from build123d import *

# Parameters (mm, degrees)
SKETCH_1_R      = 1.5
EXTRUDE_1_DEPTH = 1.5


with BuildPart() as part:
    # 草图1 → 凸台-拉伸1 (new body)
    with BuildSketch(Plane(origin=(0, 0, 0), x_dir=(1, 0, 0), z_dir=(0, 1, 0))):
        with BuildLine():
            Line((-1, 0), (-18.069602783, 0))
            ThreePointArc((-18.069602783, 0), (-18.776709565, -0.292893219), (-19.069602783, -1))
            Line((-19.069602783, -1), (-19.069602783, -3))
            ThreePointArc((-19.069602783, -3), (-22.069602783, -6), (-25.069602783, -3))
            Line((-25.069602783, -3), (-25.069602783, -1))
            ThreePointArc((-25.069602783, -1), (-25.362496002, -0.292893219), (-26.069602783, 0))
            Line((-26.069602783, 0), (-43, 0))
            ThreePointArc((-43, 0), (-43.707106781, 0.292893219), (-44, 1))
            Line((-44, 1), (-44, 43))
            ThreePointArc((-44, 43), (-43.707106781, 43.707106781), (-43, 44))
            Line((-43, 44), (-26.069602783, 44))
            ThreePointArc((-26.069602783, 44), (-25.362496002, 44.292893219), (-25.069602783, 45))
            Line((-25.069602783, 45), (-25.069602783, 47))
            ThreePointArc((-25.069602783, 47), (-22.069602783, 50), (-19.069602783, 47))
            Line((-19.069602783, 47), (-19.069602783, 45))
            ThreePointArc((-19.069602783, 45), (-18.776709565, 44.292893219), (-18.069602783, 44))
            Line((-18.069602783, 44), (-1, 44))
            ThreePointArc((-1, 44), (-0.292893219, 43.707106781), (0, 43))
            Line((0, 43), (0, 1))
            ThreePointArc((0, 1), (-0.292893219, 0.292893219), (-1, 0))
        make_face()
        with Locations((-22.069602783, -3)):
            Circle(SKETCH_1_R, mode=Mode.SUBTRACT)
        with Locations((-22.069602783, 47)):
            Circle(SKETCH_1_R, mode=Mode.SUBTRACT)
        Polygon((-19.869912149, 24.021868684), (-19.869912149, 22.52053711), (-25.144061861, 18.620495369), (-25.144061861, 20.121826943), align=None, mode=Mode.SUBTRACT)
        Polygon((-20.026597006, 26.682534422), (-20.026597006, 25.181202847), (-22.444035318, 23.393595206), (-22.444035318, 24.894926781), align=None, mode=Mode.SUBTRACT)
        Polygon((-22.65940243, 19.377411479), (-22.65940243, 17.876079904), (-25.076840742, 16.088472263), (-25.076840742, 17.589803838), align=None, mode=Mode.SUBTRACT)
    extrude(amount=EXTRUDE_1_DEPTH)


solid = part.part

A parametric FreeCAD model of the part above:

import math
import FreeCAD as App
import Part
import Sketcher
Q = App.Units.Quantity

doc = App.newDocument("Part")
body = doc.addObject("PartDesign::Body", "Body")

# Sketch on XZ plane
sketch1 = body.newObject("Sketcher::SketchObject", "Sketch")
sketch1.AttachmentSupport = (doc.getObject("XZ_Plane"), [""])
sketch1.MapMode = "FlatFace"
sketch1.addGeometry([
    Part.LineSegment(App.Vector(-18.1, 0, 0), App.Vector(-1, 0, 0)),  # 0
    Part.ArcOfCircle(Part.Circle(App.Vector(-1, -1, 0), App.Vector(0, 0, 1), 1), math.radians(0), math.radians(90)),  # 1
    Part.LineSegment(App.Vector(0, -1, 0), App.Vector(0, -43, 0)),  # 2
    Part.ArcOfCircle(Part.Circle(App.Vector(-1, -43, 0), App.Vector(0, 0, 1), 1), math.radians(-90), math.radians(0)),  # 3
    Part.LineSegment(App.Vector(-1, -44, 0), App.Vector(-18.1, -44, 0)),  # 4
    Part.ArcOfCircle(Part.Circle(App.Vector(-18.1, -45, 0), App.Vector(0, 0, 1), 1), math.radians(90), math.radians(180)),  # 5
    Part.LineSegment(App.Vector(-19.1, -45, 0), App.Vector(-19.1, -47, 0)),  # 6
    Part.ArcOfCircle(Part.Circle(App.Vector(-22.1, -47, 0), App.Vector(0, 0, 1), 3), math.radians(180), math.radians(360)),  # 7
    Part.LineSegment(App.Vector(-25.1, -47, 0), App.Vector(-25.1, -45, 0)),  # 8
    Part.ArcOfCircle(Part.Circle(App.Vector(-26.1, -45, 0), App.Vector(0, 0, 1), 1), math.radians(0), math.radians(90)),  # 9
    Part.LineSegment(App.Vector(-26.1, -44, 0), App.Vector(-43, -44, 0)),  # 10
    Part.ArcOfCircle(Part.Circle(App.Vector(-43, -43, 0), App.Vector(0, 0, 1), 1), math.radians(-180), math.radians(-90)),  # 11
    Part.LineSegment(App.Vector(-44, -43, 0), App.Vector(-44, -1, 0)),  # 12
    Part.ArcOfCircle(Part.Circle(App.Vector(-43, -1, 0), App.Vector(0, 0, 1), 1), math.radians(90), math.radians(180)),  # 13
    Part.LineSegment(App.Vector(-43, 0, 0), App.Vector(-26.1, 0, 0)),  # 14
    Part.ArcOfCircle(Part.Circle(App.Vector(-26.1, 1, 0), App.Vector(0, 0, 1), 1), math.radians(-90), math.radians(0)),  # 15
    Part.LineSegment(App.Vector(-25.1, 1, 0), App.Vector(-25.1, 3, 0)),  # 16
    Part.ArcOfCircle(Part.Circle(App.Vector(-22.1, 3, 0), App.Vector(0, 0, 1), 3), math.radians(0), math.radians(180)),  # 17
    Part.LineSegment(App.Vector(-19.1, 3, 0), App.Vector(-19.1, 1, 0)),  # 18
    Part.ArcOfCircle(Part.Circle(App.Vector(-18.1, 1, 0), App.Vector(0, 0, 1), 1), math.radians(180), math.radians(270)),  # 19
    Part.Circle(App.Vector(-22.1, 3, 0), App.Vector(0, 0, 1), 1.5),  # 20
    Part.LineSegment(App.Vector(-19.9, -24, 0), App.Vector(-19.9, -22.5, 0)),  # 21
    Part.LineSegment(App.Vector(-19.9, -22.5, 0), App.Vector(-25.1, -18.6, 0)),  # 22
    Part.LineSegment(App.Vector(-25.1, -18.6, 0), App.Vector(-25.1, -20.1, 0)),  # 23
    Part.LineSegment(App.Vector(-25.1, -20.1, 0), App.Vector(-19.9, -24, 0)),  # 24
    Part.LineSegment(App.Vector(-22.7, -19.4, 0), App.Vector(-22.7, -17.9, 0)),  # 25
    Part.LineSegment(App.Vector(-22.7, -17.9, 0), App.Vector(-25.1, -16.1, 0)),  # 26
    Part.LineSegment(App.Vector(-25.1, -16.1, 0), App.Vector(-25.1, -17.6, 0)),  # 27
    Part.LineSegment(App.Vector(-25.1, -17.6, 0), App.Vector(-22.7, -19.4, 0)),  # 28
    Part.LineSegment(App.Vector(-20, -26.7, 0), App.Vector(-20, -25.2, 0)),  # 29
    Part.LineSegment(App.Vector(-20, -25.2, 0), App.Vector(-22.4, -23.4, 0)),  # 30
    Part.LineSegment(App.Vector(-22.4, -23.4, 0), App.Vector(-22.4, -24.9, 0)),  # 31
    Part.LineSegment(App.Vector(-22.4, -24.9, 0), App.Vector(-20, -26.7, 0)),  # 32
    Part.Circle(App.Vector(-22.1, -47, 0), App.Vector(0, 0, 1), 1.5),  # 33
], False)
sketch1.addConstraint([
    Sketcher.Constraint("Tangent", 0, 2, 1, 2),
    Sketcher.Constraint("Tangent", 1, 1, 2, 1),
    Sketcher.Constraint("Tangent", 2, 2, 3, 2),
    Sketcher.Constraint("Tangent", 3, 1, 4, 1),
    Sketcher.Constraint("Tangent", 4, 2, 5, 1),
    Sketcher.Constraint("Tangent", 5, 2, 6, 1),
    Sketcher.Constraint("Tangent", 6, 2, 7, 2),
    Sketcher.Constraint("Tangent", 7, 1, 8, 1),
    Sketcher.Constraint("Tangent", 8, 2, 9, 1),
    Sketcher.Constraint("Tangent", 9, 2, 10, 1),
    Sketcher.Constraint("Tangent", 10, 2, 11, 2),
    Sketcher.Constraint("Tangent", 11, 1, 12, 1),
    Sketcher.Constraint("Tangent", 12, 2, 13, 2),
    Sketcher.Constraint("Tangent", 13, 1, 14, 1),
    Sketcher.Constraint("Tangent", 14, 2, 15, 1),
    Sketcher.Constraint("Tangent", 15, 2, 16, 1),
    Sketcher.Constraint("Tangent", 16, 2, 17, 2),
    Sketcher.Constraint("Tangent", 17, 1, 18, 1),
    Sketcher.Constraint("Tangent", 18, 2, 19, 1),
    Sketcher.Constraint("Tangent", 19, 2, 0, 1),
    Sketcher.Constraint("Coincident", 21, 2, 22, 1),
    Sketcher.Constraint("Coincident", 22, 2, 23, 1),
    Sketcher.Constraint("Coincident", 23, 2, 24, 1),
    Sketcher.Constraint("Coincident", 24, 2, 21, 1),
    Sketcher.Constraint("Coincident", 25, 2, 26, 1),
    Sketcher.Constraint("Coincident", 26, 2, 27, 1),
    Sketcher.Constraint("Coincident", 27, 2, 28, 1),
    Sketcher.Constraint("Coincident", 28, 2, 25, 1),
    Sketcher.Constraint("Coincident", 29, 2, 30, 1),
    Sketcher.Constraint("Coincident", 30, 2, 31, 1),
    Sketcher.Constraint("Coincident", 31, 2, 32, 1),
    Sketcher.Constraint("Coincident", 32, 2, 29, 1),
    Sketcher.Constraint("Horizontal", 0),
    Sketcher.Constraint("Vertical", 2),
    Sketcher.Constraint("Horizontal", 4),
    Sketcher.Constraint("Vertical", 6),
    Sketcher.Constraint("Vertical", 8),
    Sketcher.Constraint("Horizontal", 10),
    Sketcher.Constraint("Vertical", 12),
    Sketcher.Constraint("Horizontal", 14),
    Sketcher.Constraint("Vertical", 16),
    Sketcher.Constraint("Vertical", 18),
    Sketcher.Constraint("Vertical", 21),
    Sketcher.Constraint("Vertical", 23),
    Sketcher.Constraint("Vertical", 25),
    Sketcher.Constraint("Vertical", 27),
    Sketcher.Constraint("Vertical", 29),
    Sketcher.Constraint("Vertical", 31),
    Sketcher.Constraint("Coincident", 20, 3, 17, 3),
    Sketcher.Constraint("Coincident", 33, 3, 7, 3),
    Sketcher.Constraint("Equal", 1, 3),
    Sketcher.Constraint("Equal", 3, 5),
    Sketcher.Constraint("Equal", 5, 9),
    Sketcher.Constraint("Equal", 9, 11),
    Sketcher.Constraint("Equal", 11, 13),
    Sketcher.Constraint("Equal", 13, 15),
    Sketcher.Constraint("Equal", 7, 17),
    Sketcher.Constraint("Equal", 15, 19),
    Sketcher.Constraint("Equal", 20, 33),
    Sketcher.Constraint("PointOnObject", 0, 2, -1),
    Sketcher.Constraint("PointOnObject", 1, 1, -2),
    Sketcher.Constraint("PointOnObject", 13, 1, -1),
    Sketcher.Constraint("Parallel", 22, 24),
    Sketcher.Constraint("Parallel", 24, 26),
    Sketcher.Constraint("Parallel", 26, 28),
    Sketcher.Constraint("Parallel", 28, 30),
    Sketcher.Constraint("Parallel", 30, 32),
    Sketcher.Constraint("Horizontal", 5, 3, 9, 3),
    Sketcher.Constraint("Vertical", 9, 3, 15, 3),
    Sketcher.Constraint("Equal", 8, 16),
    Sketcher.Constraint("Equal", 23, 25),
    Sketcher.Constraint("Equal", 27, 29),
    Sketcher.Constraint("Equal", 28, 30),
    Sketcher.Constraint("Diameter", 20, Q("3 mm")),
    Sketcher.Constraint("Radius", 1, Q("1 mm")),
    Sketcher.Constraint("Radius", 7, Q("3 mm")),
    Sketcher.Constraint("DistanceY", 2, 2, 2, 1, Q("42 mm")),
    Sketcher.Constraint("DistanceY", 6, 2, 6, 1, Q("2 mm")),
    Sketcher.Constraint("DistanceX", 11, 3, -1, 1, Q("43 mm")),
    Sketcher.Constraint("DistanceY", 21, 1, 21, 2, Q("1.501332 mm")),
    Sketcher.Constraint("DistanceX", 14, 2, 25, 2, Q("3.4102 mm")),
    Sketcher.Constraint("DistanceY", 31, 2, 23, 2, Q("4.7731 mm")),
    Sketcher.Constraint("DistanceX", 0, 1, 0, 2, Q("17.069603 mm")),
    Sketcher.Constraint("DistanceX", 22, 2, -1, 1, Q("25.144062 mm")),
    Sketcher.Constraint("DistanceY", 24, 2, -1, 1, Q("24.021869 mm")),
    Sketcher.Constraint("DistanceY", 25, 2, -1, 1, Q("17.87608 mm")),
    Sketcher.Constraint("DistanceX", 26, 2, -1, 1, Q("25.076841 mm")),
    Sketcher.Constraint("DistanceX", 21, 2, 4, 2, Q("1.800309 mm")),
    Sketcher.Constraint("DistanceY", 21, 2, 22, 2, Q("3.900042 mm")),
    Sketcher.Constraint("DistanceX", 29, 2, -1, 1, Q("20.026597 mm")),
])
pad1 = body.newObject("PartDesign::Pad", "Pad")
pad1.Profile = sketch1
pad1.Length = 1.5
pad1.Reversed = True

doc.recompute()
